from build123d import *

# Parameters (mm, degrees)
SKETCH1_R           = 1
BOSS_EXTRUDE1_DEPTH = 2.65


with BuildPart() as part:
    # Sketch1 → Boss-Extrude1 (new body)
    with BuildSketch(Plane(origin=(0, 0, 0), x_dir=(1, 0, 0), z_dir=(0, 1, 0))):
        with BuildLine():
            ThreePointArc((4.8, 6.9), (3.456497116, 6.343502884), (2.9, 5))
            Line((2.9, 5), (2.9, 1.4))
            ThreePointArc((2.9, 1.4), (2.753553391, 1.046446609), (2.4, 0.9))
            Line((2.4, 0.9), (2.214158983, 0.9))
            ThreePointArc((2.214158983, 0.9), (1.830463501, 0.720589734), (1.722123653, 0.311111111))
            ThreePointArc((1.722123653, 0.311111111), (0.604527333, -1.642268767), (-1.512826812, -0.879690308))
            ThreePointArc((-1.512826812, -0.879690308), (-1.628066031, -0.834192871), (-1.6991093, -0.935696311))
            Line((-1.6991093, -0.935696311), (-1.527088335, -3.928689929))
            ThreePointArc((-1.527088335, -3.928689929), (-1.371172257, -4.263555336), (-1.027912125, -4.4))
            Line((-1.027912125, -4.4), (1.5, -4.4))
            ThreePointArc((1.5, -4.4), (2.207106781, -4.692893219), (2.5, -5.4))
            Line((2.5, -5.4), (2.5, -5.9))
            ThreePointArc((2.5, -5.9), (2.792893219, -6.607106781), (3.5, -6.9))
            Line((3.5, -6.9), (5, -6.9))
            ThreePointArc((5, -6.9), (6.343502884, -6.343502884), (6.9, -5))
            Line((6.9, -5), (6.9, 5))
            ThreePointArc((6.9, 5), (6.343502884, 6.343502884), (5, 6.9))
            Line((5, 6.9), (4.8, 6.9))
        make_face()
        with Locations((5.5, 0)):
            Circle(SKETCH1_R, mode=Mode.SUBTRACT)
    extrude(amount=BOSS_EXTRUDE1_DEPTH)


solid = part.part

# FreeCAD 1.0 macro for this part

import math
import FreeCAD as App
import Part
import Sketcher
Q = App.Units.Quantity

doc = App.newDocument("Part")
body = doc.addObject("PartDesign::Body", "Body")

sketch1 = doc.addObject("Sketcher::SketchObject", "Sketch")
body.addObject(sketch1)
sketch1.AttachmentSupport = (doc.XZ_Plane, [""])
sketch1.MapMode = "FlatFace"
sketch1.addGeometry(Part.ArcOfCircle(Part.Circle(App.Vector(4.8, -5, 0), App.Vector(0, 0, 1), 1.9), math.radians(-180), math.radians(-90)), False)
sketch1.addGeometry(Part.LineSegment(App.Vector(2.9, -5, 0), App.Vector(2.9, -1.4, 0)), False)
sketch1.addGeometry(Part.ArcOfCircle(Part.Circle(App.Vector(2.4, -1.4, 0), App.Vector(0, 0, 1), 0.5), math.radians(0), math.radians(90)), False)
sketch1.addGeometry(Part.LineSegment(App.Vector(2.4, -0.9, 0), App.Vector(2.21, -0.9, 0)), False)
sketch1.addGeometry(Part.ArcOfCircle(Part.Circle(App.Vector(2.21, -0.4, 0), App.Vector(0, 0, 1), 0.5), math.radians(170), math.radians(270)), False)
sketch1.addGeometry(Part.ArcOfCircle(Part.Circle(App.Vector(0, 0, 0), App.Vector(0, 0, 1), 1.75), math.radians(-10), math.radians(150)), False)
sketch1.addGeometry(Part.ArcOfCircle(Part.Circle(App.Vector(-1.6, 0.93, 0), App.Vector(0, 0, 1), 0.1), math.radians(177), math.radians(330)), False)
sketch1.addGeometry(Part.LineSegment(App.Vector(-1.7, 0.94, 0), App.Vector(-1.53, 3.93, 0)), False)
sketch1.addGeometry(Part.ArcOfCircle(Part.Circle(App.Vector(-1.03, 3.9, 0), App.Vector(0, 0, 1), 0.5), math.radians(90), math.radians(177)), False)
sketch1.addGeometry(Part.LineSegment(App.Vector(-1.03, 4.4, 0), App.Vector(1.5, 4.4, 0)), False)
sketch1.addGeometry(Part.ArcOfCircle(Part.Circle(App.Vector(1.5, 5.4, 0), App.Vector(0, 0, 1), 1), math.radians(-90), math.radians(0)), False)
sketch1.addGeometry(Part.LineSegment(App.Vector(2.5, 5.4, 0), App.Vector(2.5, 5.9, 0)), False)
sketch1.addGeometry(Part.ArcOfCircle(Part.Circle(App.Vector(3.5, 5.9, 0), App.Vector(0, 0, 1), 1), math.radians(90), math.radians(180)), False)
sketch1.addGeometry(Part.LineSegment(App.Vector(3.5, 6.9, 0), App.Vector(5, 6.9, 0)), False)
sketch1.addGeometry(Part.ArcOfCircle(Part.Circle(App.Vector(5, 5, 0), App.Vector(0, 0, 1), 1.9), math.radians(0), math.radians(90)), False)
sketch1.addGeometry(Part.LineSegment(App.Vector(6.9, 5, 0), App.Vector(6.9, -5, 0)), False)
sketch1.addGeometry(Part.ArcOfCircle(Part.Circle(App.Vector(5, -5, 0), App.Vector(0, 0, 1), 1.9), math.radians(-90), math.radians(0)), False)
sketch1.addGeometry(Part.LineSegment(App.Vector(5, -6.9, 0), App.Vector(4.8, -6.9, 0)), False)
sketch1.addGeometry(Part.Circle(App.Vector(5.5, 0, 0), App.Vector(0, 0, 1), 1), False)
sketch1.addConstraint(Sketcher.Constraint("Tangent", 0, 1, 1, 1))
sketch1.addConstraint(Sketcher.Constraint("Tangent", 1, 2, 2, 1))
sketch1.addConstraint(Sketcher.Constraint("Tangent", 2, 2, 3, 1))
sketch1.addConstraint(Sketcher.Constraint("Tangent", 3, 2, 4, 2))
sketch1.addConstraint(Sketcher.Constraint("Tangent", 4, 1, 5, 1))
sketch1.addConstraint(Sketcher.Constraint("Tangent", 5, 2, 6, 2))
sketch1.addConstraint(Sketcher.Constraint("Tangent", 6, 1, 7, 1))
sketch1.addConstraint(Sketcher.Constraint("Tangent", 7, 2, 8, 2))
sketch1.addConstraint(Sketcher.Constraint("Tangent", 8, 1, 9, 1))
sketch1.addConstraint(Sketcher.Constraint("Tangent", 9, 2, 10, 1))
sketch1.addConstraint(Sketcher.Constraint("Tangent", 10, 2, 11, 1))
sketch1.addConstraint(Sketcher.Constraint("Tangent", 11, 2, 12, 2))
sketch1.addConstraint(Sketcher.Constraint("Tangent", 12, 1, 13, 1))
sketch1.addConstraint(Sketcher.Constraint("Tangent", 13, 2, 14, 2))
sketch1.addConstraint(Sketcher.Constraint("Tangent", 14, 1, 15, 1))
sketch1.addConstraint(Sketcher.Constraint("Tangent", 15, 2, 16, 2))
sketch1.addConstraint(Sketcher.Constraint("Tangent", 16, 1, 17, 1))
sketch1.addConstraint(Sketcher.Constraint("Tangent", 17, 2, 0, 2))
sketch1.addConstraint(Sketcher.Constraint("Vertical", 1))
sketch1.addConstraint(Sketcher.Constraint("Horizontal", 3))
sketch1.addConstraint(Sketcher.Constraint("Horizontal", 9))
sketch1.addConstraint(Sketcher.Constraint("Vertical", 11))
sketch1.addConstraint(Sketcher.Constraint("Horizontal", 13))
sketch1.addConstraint(Sketcher.Constraint("Vertical", 15))
sketch1.addConstraint(Sketcher.Constraint("Horizontal", 17))
sketch1.addConstraint(Sketcher.Constraint("Coincident", 5, 3, -1, 1))
sketch1.addConstraint(Sketcher.Constraint("Equal", 2, 4))
sketch1.addConstraint(Sketcher.Constraint("Equal", 4, 8))
sketch1.addConstraint(Sketcher.Constraint("Equal", 10, 12))
sketch1.addConstraint(Sketcher.Constraint("Equal", 0, 14))
sketch1.addConstraint(Sketcher.Constraint("Equal", 14, 16))
sketch1.addConstraint(Sketcher.Constraint("Equal", 12, 18))
sketch1.addConstraint(Sketcher.Constraint("PointOnObject", 18, 3, -1))
sketch1.addConstraint(Sketcher.Constraint("Diameter", 18, Q("2 mm")))
sketch1.addConstraint(Sketcher.Constraint("Radius", 0, Q("1.9 mm")))
sketch1.addConstraint(Sketcher.Constraint("Radius", 2, Q("0.5 mm")))
sketch1.addConstraint(Sketcher.Constraint("Radius", 6, Q("0.1 mm")))
sketch1.addConstraint(Sketcher.Constraint("DistanceY", 15, 2, 15, 1, Q("10 mm")))
sketch1.addConstraint(Sketcher.Constraint("Radius", 5, Q("1.75 mm")))
sketch1.addConstraint(Sketcher.Constraint("DistanceX", 13, 1, 13, 2, Q("1.5 mm")))
sketch1.addConstraint(Sketcher.Constraint("DistanceX", 17, 2, 17, 1, Q("0.2 mm")))
sketch1.addConstraint(Sketcher.Constraint("DistanceY", 1, 1, 1, 2, Q("3.6 mm")))
sketch1.addConstraint(Sketcher.Constraint("DistanceY", 11, 1, 11, 2, Q("0.5 mm")))
sketch1.addConstraint(Sketcher.Constraint("DistanceY", 0, 3, -1, 1, Q("5 mm")))
sketch1.addConstraint(Sketcher.Constraint("DistanceX", -1, 1, 14, 3, Q("5 mm")))
sketch1.addConstraint(Sketcher.Constraint("DistanceX", -1, 1, 18, 3, Q("5.5 mm")))
sketch1.addConstraint(Sketcher.Constraint("DistanceY", 5, 2, 7, 2, Q("3.049 mm")))
sketch1.addConstraint(Sketcher.Constraint("DistanceY", 4, 1, 5, 2, Q("1.190801 mm")))
pad1 = doc.addObject("PartDesign::Pad", "Pad")
body.addObject(pad1)
pad1.Profile = sketch1
pad1.Length = 2.65
pad1.Reversed = True

doc.recompute()
